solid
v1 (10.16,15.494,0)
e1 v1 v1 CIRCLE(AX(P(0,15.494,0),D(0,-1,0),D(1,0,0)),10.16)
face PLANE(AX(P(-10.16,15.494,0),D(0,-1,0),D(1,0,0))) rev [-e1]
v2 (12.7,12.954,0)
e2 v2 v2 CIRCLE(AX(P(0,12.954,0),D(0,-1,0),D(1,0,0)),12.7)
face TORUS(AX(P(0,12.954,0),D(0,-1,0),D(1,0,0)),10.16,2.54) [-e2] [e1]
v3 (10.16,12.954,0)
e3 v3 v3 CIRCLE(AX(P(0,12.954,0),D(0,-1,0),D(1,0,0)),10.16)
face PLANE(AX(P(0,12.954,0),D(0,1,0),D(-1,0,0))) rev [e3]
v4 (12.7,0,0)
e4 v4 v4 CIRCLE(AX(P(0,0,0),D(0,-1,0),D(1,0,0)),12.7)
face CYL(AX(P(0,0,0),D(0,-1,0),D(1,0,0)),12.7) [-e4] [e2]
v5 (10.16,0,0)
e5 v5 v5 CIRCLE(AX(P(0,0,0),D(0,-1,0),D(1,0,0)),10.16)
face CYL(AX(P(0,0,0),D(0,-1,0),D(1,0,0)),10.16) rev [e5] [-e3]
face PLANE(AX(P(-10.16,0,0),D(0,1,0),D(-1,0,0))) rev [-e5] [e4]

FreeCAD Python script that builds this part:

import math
import FreeCAD as App
import Part
import Sketcher
from FreeCAD import Vector
Q = App.Units.Quantity

doc = App.newDocument("Part")
body = doc.addObject("PartDesign::Body", "Body")

# Sketch on XY plane
sketch1 = doc.addObject("Sketcher::SketchObject", "Sketch")
body.addObject(sketch1)
sketch1.AttachmentSupport = (doc.XY_Plane, [""])
sketch1.MapMode = "FlatFace"
sketch1.addGeometry(Part.LineSegment(Vector(-10.16, 12.954, 0), Vector(0, 12.954, 0)), False)
sketch1.addGeometry(Part.LineSegment(Vector(0, 12.954, 0), Vector(0, 15.494, 0)), False)
sketch1.addGeometry(Part.LineSegment(Vector(0, 15.494, 0), Vector(-10.16, 15.494, 0)), False)
sketch1.addGeometry(Part.ArcOfCircle(Part.Circle(Vector(-10.16, 12.954, 0), Vector(0, 0, 1), 2.54), math.radians(90), math.radians(180)), False)
sketch1.addGeometry(Part.LineSegment(Vector(-12.7, 12.954, 0), Vector(-12.7, 0, 0)), False)
sketch1.addGeometry(Part.LineSegment(Vector(-12.7, 0, 0), Vector(-10.16, 0, 0)), False)
sketch1.addGeometry(Part.LineSegment(Vector(-10.16, 0, 0), Vector(-10.16, 12.954, 0)), False)
sketch1.addConstraint(Sketcher.Constraint("Coincident", 0, 2, 1, 1))
sketch1.addConstraint(Sketcher.Constraint("Coincident", 1, 2, 2, 1))
sketch1.addConstraint(Sketcher.Constraint("Tangent", 2, 2, 3, 1))
sketch1.addConstraint(Sketcher.Constraint("Tangent", 3, 2, 4, 1))
sketch1.addConstraint(Sketcher.Constraint("Coincident", 4, 2, 5, 1))
sketch1.addConstraint(Sketcher.Constraint("Coincident", 5, 2, 6, 1))
sketch1.addConstraint(Sketcher.Constraint("Coincident", 6, 2, 0, 1))
sketch1.addConstraint(Sketcher.Constraint("Horizontal", 0))
sketch1.addConstraint(Sketcher.Constraint("Vertical", 1))
sketch1.addConstraint(Sketcher.Constraint("Horizontal", 2))
sketch1.addConstraint(Sketcher.Constraint("Vertical", 4))
sketch1.addConstraint(Sketcher.Constraint("Horizontal", 5))
sketch1.addConstraint(Sketcher.Constraint("Vertical", 6))
sketch1.addConstraint(Sketcher.Constraint("Coincident", 6, 2, 3, 3))
sketch1.addConstraint(Sketcher.Constraint("PointOnObject", 0, 2, -2))
sketch1.addConstraint(Sketcher.Constraint("PointOnObject", 4, 2, -1))
sketch1.addConstraint(Sketcher.Constraint("Radius", 3, Q("0.1 in")))
sketch1.addConstraint(Sketcher.Constraint("DistanceX", 0, 1, 0, 2, Q("0.4 in")))
sketch1.addConstraint(Sketcher.Constraint("DistanceY", 4, 2, 4, 1, Q("0.51 in")))
revolution = doc.addObject("PartDesign::Revolution", "Revolution")
body.addObject(revolution)
revolution.Profile = sketch1
revolution.ReferenceAxis = (sketch1, ["V_Axis"])
revolution.Angle = 360

doc.recompute()
